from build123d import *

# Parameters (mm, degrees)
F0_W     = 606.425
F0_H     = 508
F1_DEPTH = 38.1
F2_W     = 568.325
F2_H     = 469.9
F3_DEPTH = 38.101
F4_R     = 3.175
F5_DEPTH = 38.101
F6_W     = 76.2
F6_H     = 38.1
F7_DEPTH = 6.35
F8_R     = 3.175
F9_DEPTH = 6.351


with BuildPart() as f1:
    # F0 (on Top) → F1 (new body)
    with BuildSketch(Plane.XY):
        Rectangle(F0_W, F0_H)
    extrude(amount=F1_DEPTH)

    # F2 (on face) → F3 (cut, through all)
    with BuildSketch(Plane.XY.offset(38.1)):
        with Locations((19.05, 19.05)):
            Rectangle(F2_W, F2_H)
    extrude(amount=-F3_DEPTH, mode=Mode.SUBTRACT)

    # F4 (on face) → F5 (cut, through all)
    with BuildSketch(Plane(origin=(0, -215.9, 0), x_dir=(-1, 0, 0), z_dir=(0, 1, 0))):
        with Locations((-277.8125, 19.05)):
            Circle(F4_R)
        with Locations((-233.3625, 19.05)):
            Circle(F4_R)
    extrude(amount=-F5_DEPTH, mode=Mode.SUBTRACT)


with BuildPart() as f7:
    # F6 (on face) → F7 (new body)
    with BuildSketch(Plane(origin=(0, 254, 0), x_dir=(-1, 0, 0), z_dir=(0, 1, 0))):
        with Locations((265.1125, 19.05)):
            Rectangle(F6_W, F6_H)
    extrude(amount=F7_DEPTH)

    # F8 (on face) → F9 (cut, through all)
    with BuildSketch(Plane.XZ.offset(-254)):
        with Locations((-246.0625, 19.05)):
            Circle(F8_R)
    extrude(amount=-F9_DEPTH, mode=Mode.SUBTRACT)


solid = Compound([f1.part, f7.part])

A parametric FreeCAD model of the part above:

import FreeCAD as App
import Part
import Sketcher
from FreeCAD import Vector
Q = App.Units.Quantity

doc = App.newDocument("Part")
body = doc.addObject("PartDesign::Body", "Body")

# Sketch on XY plane
sketch1 = body.newObject("Sketcher::SketchObject", "Sketch")
sketch1.AttachmentSupport = (doc.getObject("XY_Plane"), [""])
sketch1.MapMode = "FlatFace"
sketch1.addGeometry([
    Part.LineSegment(Vector(-303.2125, 254, 0), Vector(-303.2125, -254, 0)),
    Part.LineSegment(Vector(-303.2125, -254, 0), Vector(303.2125, -254, 0)),
    Part.LineSegment(Vector(303.2125, -254, 0), Vector(303.2125, 254, 0)),
    Part.LineSegment(Vector(303.2125, 254, 0), Vector(-303.2125, 254, 0)),
], False)
sketch1.addConstraint([
    Sketcher.Constraint("Coincident", 0, 2, 1, 1),
    Sketcher.Constraint("Coincident", 1, 2, 2, 1),
    Sketcher.Constraint("Coincident", 2, 2, 3, 1),
    Sketcher.Constraint("Coincident", 3, 2, 0, 1),
    Sketcher.Constraint("Vertical", 0),
    Sketcher.Constraint("Horizontal", 1),
    Sketcher.Constraint("Vertical", 2),
    Sketcher.Constraint("Horizontal", 3),
    Sketcher.Constraint("Symmetric", 0, 2, 2, 2, -1, 1),
    Sketcher.Constraint("DistanceY", 0, 2, 0, 1, Q("20 in")),
    Sketcher.Constraint("DistanceX", 1, 1, 1, 2, Q("23.875 in")),
])
pad1 = body.newObject("PartDesign::Pad", "Pad")
pad1.Profile = sketch1
pad1.Length = Q("1.5 in")

# Sketch on XY plane
sketch2 = body.newObject("Sketcher::SketchObject", "Sketch001")
sketch2.AttachmentSupport = (doc.getObject("XY_Plane"), [""])
sketch2.MapMode = "FlatFace"
sketch2.AttachmentOffset = App.Placement(Vector(0, 0, 1.5 * 25.4), App.Rotation())
sketch2.addGeometry([
    Part.LineSegment(Vector(-265.1125, 254, 0), Vector(-265.1125, -215.9, 0)),
    Part.LineSegment(Vector(-265.1125, -215.9, 0), Vector(303.2125, -215.9, 0)),
    Part.LineSegment(Vector(303.2125, -215.9, 0), Vector(303.2125, 254, 0)),
    Part.LineSegment(Vector(303.2125, 254, 0), Vector(-265.1125, 254, 0)),
], False)
sketch2.addConstraint([
    Sketcher.Constraint("Coincident", 0, 2, 1, 1),
    Sketcher.Constraint("Coincident", 1, 2, 2, 1),
    Sketcher.Constraint("Coincident", 2, 2, 3, 1),
    Sketcher.Constraint("Coincident", 3, 2, 0, 1),
    Sketcher.Constraint("Vertical", 0),
    Sketcher.Constraint("Horizontal", 1),
    Sketcher.Constraint("Vertical", 2),
    Sketcher.Constraint("Horizontal", 3),
    Sketcher.Constraint("DistanceY", 0, 2, 0, 1, Q("18.5 in")),
    Sketcher.Constraint("DistanceY", -1, 1, 2, 2, Q("10 in")),
    Sketcher.Constraint("DistanceX", 1, 1, 1, 2, Q("22.375 in")),
    Sketcher.Constraint("DistanceX", 0, 2, -1, 1, Q("10.4375 in")),
])
pocket1 = body.newObject("PartDesign::Pocket", "Pocket")
pocket1.Profile = sketch2
pocket1.Type = "ThroughAll"

# Sketch on XZ plane
sketch3 = body.newObject("Sketcher::SketchObject", "Sketch002")
sketch3.AttachmentSupport = (doc.getObject("XZ_Plane"), [""])
sketch3.MapMode = "FlatFace"
sketch3.AttachmentOffset = App.Placement(Vector(0, 0, 8.5 * 25.4), App.Rotation())
sketch3.addGeometry([
    Part.Circle(Vector(277.8125, 19.05, 0), Vector(0, 0, 1), 3.175),
    Part.Circle(Vector(233.3625, 19.05, 0), Vector(0, 0, 1), 3.175),
], False)
sketch3.addConstraint([
    Sketcher.Constraint("Equal", 0, 1),
    Sketcher.Constraint("Horizontal", 0, 3, 1, 3),
    Sketcher.Constraint("Diameter", 0, Q("0.25 in")),
    Sketcher.Constraint("DistanceY", -1, 1, 0, 3, Q("0.75 in")),
    Sketcher.Constraint("DistanceX", 1, 3, 0, 3, Q("1.75 in")),
    Sketcher.Constraint("DistanceX", -1, 1, 0, 3, Q("10.9375 in")),
])
pocket2 = body.newObject("PartDesign::Pocket", "Pocket001")
pocket2.Profile = sketch3
pocket2.Type = "ThroughAll"
pocket2.Reversed = True
body2 = doc.addObject("PartDesign::Body", "Body001")

# Sketch on XZ plane
sketch4 = body2.newObject("Sketcher::SketchObject", "Sketch003")
sketch4.AttachmentSupport = (doc.getObject("XZ_Plane001"), [""])
sketch4.MapMode = "FlatFace"
sketch4.AttachmentOffset = App.Placement(Vector(0, 0, -10 * 25.4), App.Rotation())
sketch4.addGeometry([
    Part.LineSegment(Vector(-227.0125, 38.1, 0), Vector(-227.0125, 0, 0)),
    Part.LineSegment(Vector(-227.0125, 0, 0), Vector(-303.2125, 0, 0)),
    Part.LineSegment(Vector(-303.2125, 0, 0), Vector(-303.2125, 38.1, 0)),
    Part.LineSegment(Vector(-303.2125, 38.1, 0), Vector(-227.0125, 38.1, 0)),
], False)
sketch4.addConstraint([
    Sketcher.Constraint("Coincident", 0, 2, 1, 1),
    Sketcher.Constraint("Coincident", 1, 2, 2, 1),
    Sketcher.Constraint("Coincident", 2, 2, 3, 1),
    Sketcher.Constraint("Coincident", 3, 2, 0, 1),
    Sketcher.Constraint("Vertical", 0),
    Sketcher.Constraint("Horizontal", 1),
    Sketcher.Constraint("Vertical", 2),
    Sketcher.Constraint("Horizontal", 3),
    Sketcher.Constraint("PointOnObject", 0, 2, -1),
    Sketcher.Constraint("DistanceX", 1, 2, 1, 1, Q("3 in")),
    Sketcher.Constraint("DistanceY", 0, 2, 0, 1, Q("1.5 in")),
    Sketcher.Constraint("DistanceX", 0, 2, -1, 1, Q("8.9375 in")),
])
pad2 = body2.newObject("PartDesign::Pad", "Pad001")
pad2.Profile = sketch4
pad2.Length = Q("0.25 in")
pad2.Reversed = True

# Sketch on XZ plane
sketch5 = body2.newObject("Sketcher::SketchObject", "Sketch004")
sketch5.AttachmentSupport = (doc.getObject("XZ_Plane001"), [""])
sketch5.MapMode = "FlatFace"
sketch5.AttachmentOffset = App.Placement(Vector(0, 0, -10 * 25.4), App.Rotation())
sketch5.addGeometry(Part.Circle(Vector(-246.0625, 19.05, 0), Vector(0, 0, 1), 3.175), False)
sketch5.addConstraint([
    Sketcher.Constraint("Diameter", 0, Q("0.25 in")),
    Sketcher.Constraint("DistanceY", -1, 1, 0, 3, Q("0.75 in")),
    Sketcher.Constraint("DistanceX", 0, 3, -1, 1, Q("9.6875 in")),
])
pocket3 = body2.newObject("PartDesign::Pocket", "Pocket002")
pocket3.Profile = sketch5
pocket3.Type = "ThroughAll"

doc.recompute()
